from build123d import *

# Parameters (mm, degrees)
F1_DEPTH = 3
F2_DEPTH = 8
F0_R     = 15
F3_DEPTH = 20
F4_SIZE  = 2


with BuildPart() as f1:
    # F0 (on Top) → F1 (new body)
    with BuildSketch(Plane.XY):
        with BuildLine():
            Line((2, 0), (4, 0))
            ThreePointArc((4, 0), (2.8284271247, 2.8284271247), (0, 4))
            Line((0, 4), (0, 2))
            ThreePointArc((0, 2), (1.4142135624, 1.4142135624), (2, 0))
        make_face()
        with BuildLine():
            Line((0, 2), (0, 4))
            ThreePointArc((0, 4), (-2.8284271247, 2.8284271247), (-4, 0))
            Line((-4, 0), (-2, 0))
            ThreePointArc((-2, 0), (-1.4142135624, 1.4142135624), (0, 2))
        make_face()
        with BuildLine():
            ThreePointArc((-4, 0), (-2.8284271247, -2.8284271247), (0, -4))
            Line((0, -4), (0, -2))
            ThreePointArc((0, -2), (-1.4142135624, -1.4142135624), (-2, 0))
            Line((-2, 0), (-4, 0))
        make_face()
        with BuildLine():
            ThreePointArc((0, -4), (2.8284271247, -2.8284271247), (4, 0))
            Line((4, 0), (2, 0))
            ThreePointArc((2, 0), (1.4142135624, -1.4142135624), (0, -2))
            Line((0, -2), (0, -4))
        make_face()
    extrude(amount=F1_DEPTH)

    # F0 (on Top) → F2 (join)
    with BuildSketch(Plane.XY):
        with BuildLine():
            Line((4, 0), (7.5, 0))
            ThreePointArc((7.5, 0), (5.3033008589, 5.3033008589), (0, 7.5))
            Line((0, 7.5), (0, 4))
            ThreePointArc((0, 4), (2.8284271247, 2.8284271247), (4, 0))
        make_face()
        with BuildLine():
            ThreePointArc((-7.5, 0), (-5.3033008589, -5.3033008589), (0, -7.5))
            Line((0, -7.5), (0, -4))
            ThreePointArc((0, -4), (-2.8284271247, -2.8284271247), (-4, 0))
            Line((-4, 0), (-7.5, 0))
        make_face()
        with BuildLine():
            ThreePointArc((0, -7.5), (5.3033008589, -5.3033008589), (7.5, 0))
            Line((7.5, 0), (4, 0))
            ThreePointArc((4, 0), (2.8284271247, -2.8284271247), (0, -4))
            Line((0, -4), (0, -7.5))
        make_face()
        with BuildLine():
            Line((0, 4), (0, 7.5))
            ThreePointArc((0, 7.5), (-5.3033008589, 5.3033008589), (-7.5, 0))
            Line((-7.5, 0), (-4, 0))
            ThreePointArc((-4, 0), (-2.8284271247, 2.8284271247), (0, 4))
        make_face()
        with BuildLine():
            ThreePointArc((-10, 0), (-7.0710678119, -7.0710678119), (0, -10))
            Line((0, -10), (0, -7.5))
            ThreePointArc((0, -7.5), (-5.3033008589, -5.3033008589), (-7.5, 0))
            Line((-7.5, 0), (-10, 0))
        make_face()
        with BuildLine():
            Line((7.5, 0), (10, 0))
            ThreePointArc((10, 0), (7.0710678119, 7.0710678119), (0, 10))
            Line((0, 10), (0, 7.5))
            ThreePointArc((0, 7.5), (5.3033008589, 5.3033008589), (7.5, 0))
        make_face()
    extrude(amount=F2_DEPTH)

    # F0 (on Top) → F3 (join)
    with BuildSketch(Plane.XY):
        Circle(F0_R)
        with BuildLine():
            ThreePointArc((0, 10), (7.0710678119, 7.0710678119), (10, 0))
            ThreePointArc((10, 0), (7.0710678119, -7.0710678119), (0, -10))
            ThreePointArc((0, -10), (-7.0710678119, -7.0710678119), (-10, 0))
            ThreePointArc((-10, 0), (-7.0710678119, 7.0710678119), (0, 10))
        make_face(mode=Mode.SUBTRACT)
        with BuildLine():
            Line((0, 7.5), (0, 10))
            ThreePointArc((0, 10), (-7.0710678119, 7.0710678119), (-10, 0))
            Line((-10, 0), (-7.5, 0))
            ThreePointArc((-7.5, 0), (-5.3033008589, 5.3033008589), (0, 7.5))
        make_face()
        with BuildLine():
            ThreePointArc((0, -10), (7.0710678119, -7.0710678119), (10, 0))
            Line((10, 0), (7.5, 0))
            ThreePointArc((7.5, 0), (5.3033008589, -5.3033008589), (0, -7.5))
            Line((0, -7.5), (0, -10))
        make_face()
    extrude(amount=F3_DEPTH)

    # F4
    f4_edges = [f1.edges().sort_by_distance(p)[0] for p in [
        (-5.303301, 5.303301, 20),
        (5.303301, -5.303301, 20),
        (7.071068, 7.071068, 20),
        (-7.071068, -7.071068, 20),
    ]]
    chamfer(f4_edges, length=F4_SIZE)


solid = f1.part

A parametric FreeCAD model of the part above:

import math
import FreeCAD as App
import Part
import Sketcher


def edges_at(feature, points):
    """Names of the edges that pass closest to the given points."""
    edges = feature.Shape.Edges
    near = lambda p: min(range(len(edges)), key=lambda i: edges[i].distToShape(Part.Vertex(*p))[0])
    return sorted({f"Edge{near(p) + 1}" for p in points})

doc = App.newDocument("Part")
body = doc.addObject("PartDesign::Body", "Body")

# Sketch on XY plane
sketch1 = body.newObject("Sketcher::SketchObject", "Sketch")
sketch1.AttachmentSupport = (doc.getObject("XY_Plane"), [""])
sketch1.MapMode = "FlatFace"
sketch1.addGeometry(Part.ArcOfCircle(Part.Circle(App.Vector(0, 0, 0), App.Vector(0, 0, 1), 4), math.radians(0), math.radians(90)), False)
sketch1.addGeometry(Part.ArcOfCircle(Part.Circle(App.Vector(0, 0, 0), App.Vector(0, 0, 1), 4), math.radians(90), math.radians(180)), False)
sketch1.addGeometry(Part.ArcOfCircle(Part.Circle(App.Vector(0, 0, 0), App.Vector(0, 0, 1), 4), math.radians(180), math.radians(270)), False)
sketch1.addGeometry(Part.ArcOfCircle(Part.Circle(App.Vector(0, 0, 0), App.Vector(0, 0, 1), 4), math.radians(-90), math.radians(0)), False)
sketch1.addGeometry(Part.ArcOfCircle(Part.Circle(App.Vector(0, 0, 0), App.Vector(0, 0, 1), 2), math.radians(180), math.radians(270)), False)
sketch1.addGeometry(Part.ArcOfCircle(Part.Circle(App.Vector(0, 0, 0), App.Vector(0, 0, 1), 2), math.radians(90), math.radians(180)), False)
sketch1.addGeometry(Part.ArcOfCircle(Part.Circle(App.Vector(0, 0, 0), App.Vector(0, 0, 1), 2), math.radians(0), math.radians(90)), False)
sketch1.addGeometry(Part.ArcOfCircle(Part.Circle(App.Vector(0, 0, 0), App.Vector(0, 0, 1), 2), math.radians(-90), math.radians(0)), False)
sketch1.addConstraint(Sketcher.Constraint("Tangent", 0, 2, 1, 1))
sketch1.addConstraint(Sketcher.Constraint("Tangent", 1, 2, 2, 1))
sketch1.addConstraint(Sketcher.Constraint("Tangent", 2, 2, 3, 1))
sketch1.addConstraint(Sketcher.Constraint("Tangent", 3, 2, 0, 1))
sketch1.addConstraint(Sketcher.Constraint("Tangent", 4, 1, 5, 2))
sketch1.addConstraint(Sketcher.Constraint("Tangent", 5, 1, 6, 2))
sketch1.addConstraint(Sketcher.Constraint("Tangent", 6, 1, 7, 2))
sketch1.addConstraint(Sketcher.Constraint("Tangent", 7, 1, 4, 2))
sketch1.addConstraint(Sketcher.Constraint("Coincident", 0, 3, -1, 1))
sketch1.addConstraint(Sketcher.Constraint("Coincident", 4, 3, -1, 1))
sketch1.addConstraint(Sketcher.Constraint("Equal", 0, 1))
sketch1.addConstraint(Sketcher.Constraint("Equal", 4, 5))
sketch1.addConstraint(Sketcher.Constraint("PointOnObject", 0, 2, -2))
sketch1.addConstraint(Sketcher.Constraint("PointOnObject", 1, 2, -1))
sketch1.addConstraint(Sketcher.Constraint("PointOnObject", 2, 2, -2))
sketch1.addConstraint(Sketcher.Constraint("PointOnObject", 3, 2, -1))
sketch1.addConstraint(Sketcher.Constraint("PointOnObject", 4, 1, -1))
sketch1.addConstraint(Sketcher.Constraint("PointOnObject", 5, 1, -2))
sketch1.addConstraint(Sketcher.Constraint("PointOnObject", 6, 1, -1))
sketch1.addConstraint(Sketcher.Constraint("PointOnObject", 7, 1, -2))
sketch1.addConstraint(Sketcher.Constraint("Radius", 0, 4.0))
sketch1.addConstraint(Sketcher.Constraint("Radius", 4, 2.0))
pad1 = body.newObject("PartDesign::Pad", "Pad")
pad1.Profile = sketch1
pad1.Length = 3

# Sketch on XY plane
sketch2 = body.newObject("Sketcher::SketchObject", "Sketch001")
sketch2.AttachmentSupport = (doc.getObject("XY_Plane"), [""])
sketch2.MapMode = "FlatFace"
sketch2.addGeometry(Part.LineSegment(App.Vector(-7.5, 0, 0), App.Vector(-10, 0, 0)), False)
sketch2.addGeometry(Part.ArcOfCircle(Part.Circle(App.Vector(0, 0, 0), App.Vector(0, 0, 1), 10), math.radians(180), math.radians(270)), False)
sketch2.addGeometry(Part.LineSegment(App.Vector(0, -10, 0), App.Vector(0, -7.5, 0)), False)
sketch2.addGeometry(Part.ArcOfCircle(Part.Circle(App.Vector(0, 0, 0), App.Vector(0, 0, 1), 7.5), math.radians(-90), math.radians(0)), False)
sketch2.addGeometry(Part.LineSegment(App.Vector(7.5, 0, 0), App.Vector(10, 0, 0)), False)
sketch2.addGeometry(Part.ArcOfCircle(Part.Circle(App.Vector(0, 0, 0), App.Vector(0, 0, 1), 10), math.radians(0), math.radians(90)), False)
sketch2.addGeometry(Part.LineSegment(App.Vector(0, 10, 0), App.Vector(0, 7.5, 0)), False)
sketch2.addGeometry(Part.ArcOfCircle(Part.Circle(App.Vector(0, 0, 0), App.Vector(0, 0, 1), 7.5), math.radians(90), math.radians(180)), False)
sketch2.addGeometry(Part.ArcOfCircle(Part.Circle(App.Vector(0, 0, 0), App.Vector(0, 0, 1), 4), math.radians(0), math.radians(90)), False)
sketch2.addGeometry(Part.ArcOfCircle(Part.Circle(App.Vector(0, 0, 0), App.Vector(0, 0, 1), 4), math.radians(-90), math.radians(0)), False)
sketch2.addGeometry(Part.ArcOfCircle(Part.Circle(App.Vector(0, 0, 0), App.Vector(0, 0, 1), 4), math.radians(180), math.radians(270)), False)
sketch2.addGeometry(Part.ArcOfCircle(Part.Circle(App.Vector(0, 0, 0), App.Vector(0, 0, 1), 4), math.radians(90), math.radians(180)), False)
sketch2.addConstraint(Sketcher.Constraint("Coincident", 0, 2, 1, 1))
sketch2.addConstraint(Sketcher.Constraint("Coincident", 1, 2, 2, 1))
sketch2.addConstraint(Sketcher.Constraint("Coincident", 2, 2, 3, 1))
sketch2.addConstraint(Sketcher.Constraint("Coincident", 3, 2, 4, 1))
sketch2.addConstraint(Sketcher.Constraint("Coincident", 4, 2, 5, 1))
sketch2.addConstraint(Sketcher.Constraint("Coincident", 5, 2, 6, 1))
sketch2.addConstraint(Sketcher.Constraint("Coincident", 6, 2, 7, 1))
sketch2.addConstraint(Sketcher.Constraint("Coincident", 7, 2, 0, 1))
sketch2.addConstraint(Sketcher.Constraint("Tangent", 8, 1, 9, 2))
sketch2.addConstraint(Sketcher.Constraint("Tangent", 9, 1, 10, 2))
sketch2.addConstraint(Sketcher.Constraint("Tangent", 10, 1, 11, 2))
sketch2.addConstraint(Sketcher.Constraint("Tangent", 11, 1, 8, 2))
sketch2.addConstraint(Sketcher.Constraint("Horizontal", 0))
sketch2.addConstraint(Sketcher.Constraint("Vertical", 2))
sketch2.addConstraint(Sketcher.Constraint("Horizontal", 4))
sketch2.addConstraint(Sketcher.Constraint("Vertical", 6))
sketch2.addConstraint(Sketcher.Constraint("Coincident", 1, 3, -1, 1))
sketch2.addConstraint(Sketcher.Constraint("Coincident", 3, 3, -1, 1))
sketch2.addConstraint(Sketcher.Constraint("Coincident", 5, 3, -1, 1))
sketch2.addConstraint(Sketcher.Constraint("Coincident", 7, 3, -1, 1))
sketch2.addConstraint(Sketcher.Constraint("Coincident", 8, 3, -1, 1))
sketch2.addConstraint(Sketcher.Constraint("Equal", 1, 5))
sketch2.addConstraint(Sketcher.Constraint("Equal", 3, 7))
sketch2.addConstraint(Sketcher.Constraint("Equal", 8, 9))
sketch2.addConstraint(Sketcher.Constraint("PointOnObject", 0, 2, -1))
sketch2.addConstraint(Sketcher.Constraint("PointOnObject", 1, 2, -2))
sketch2.addConstraint(Sketcher.Constraint("PointOnObject", 3, 2, -1))
sketch2.addConstraint(Sketcher.Constraint("PointOnObject", 5, 2, -2))
sketch2.addConstraint(Sketcher.Constraint("PointOnObject", 8, 1, -1))
sketch2.addConstraint(Sketcher.Constraint("PointOnObject", 9, 1, -2))
sketch2.addConstraint(Sketcher.Constraint("PointOnObject", 10, 1, -1))
sketch2.addConstraint(Sketcher.Constraint("PointOnObject", 11, 1, -2))
sketch2.addConstraint(Sketcher.Constraint("Radius", 1, 10.0))
sketch2.addConstraint(Sketcher.Constraint("Radius", 8, 4.0))
sketch2.addConstraint(Sketcher.Constraint("Radius", 3, 7.5))
pad2 = body.newObject("PartDesign::Pad", "Pad001")
pad2.Profile = sketch2
pad2.Length = 8

# Sketch on XY plane
sketch3 = body.newObject("Sketcher::SketchObject", "Sketch002")
sketch3.AttachmentSupport = (doc.getObject("XY_Plane"), [""])
sketch3.MapMode = "FlatFace"
sketch3.addGeometry(Part.Circle(App.Vector(0, 0, 0), App.Vector(0, 0, 1), 15), False)
sketch3.addGeometry(Part.ArcOfCircle(Part.Circle(App.Vector(0, 0, 0), App.Vector(0, 0, 1), 10), math.radians(180), math.radians(270)), False)
sketch3.addGeometry(Part.LineSegment(App.Vector(-10, 0, 0), App.Vector(-7.5, 0, 0)), False)
sketch3.addGeometry(Part.ArcOfCircle(Part.Circle(App.Vector(0, 0, 0), App.Vector(0, 0, 1), 7.5), math.radians(90), math.radians(180)), False)
sketch3.addGeometry(Part.LineSegment(App.Vector(0, 7.5, 0), App.Vector(0, 10, 0)), False)
sketch3.addGeometry(Part.ArcOfCircle(Part.Circle(App.Vector(0, 0, 0), App.Vector(0, 0, 1), 10), math.radians(0), math.radians(90)), False)
sketch3.addGeometry(Part.LineSegment(App.Vector(10, 0, 0), App.Vector(7.5, 0, 0)), False)
sketch3.addGeometry(Part.ArcOfCircle(Part.Circle(App.Vector(0, 0, 0), App.Vector(0, 0, 1), 7.5), math.radians(-90), math.radians(0)), False)
sketch3.addGeometry(Part.LineSegment(App.Vector(0, -7.5, 0), App.Vector(0, -10, 0)), False)
sketch3.addConstraint(Sketcher.Constraint("Coincident", 1, 1, 2, 1))
sketch3.addConstraint(Sketcher.Constraint("Coincident", 2, 2, 3, 2))
sketch3.addConstraint(Sketcher.Constraint("Coincident", 3, 1, 4, 1))
sketch3.addConstraint(Sketcher.Constraint("Coincident", 4, 2, 5, 2))
sketch3.addConstraint(Sketcher.Constraint("Coincident", 5, 1, 6, 1))
sketch3.addConstraint(Sketcher.Constraint("Coincident", 6, 2, 7, 2))
sketch3.addConstraint(Sketcher.Constraint("Coincident", 7, 1, 8, 1))
sketch3.addConstraint(Sketcher.Constraint("Coincident", 8, 2, 1, 2))
sketch3.addConstraint(Sketcher.Constraint("Horizontal", 2))
sketch3.addConstraint(Sketcher.Constraint("Vertical", 4))
sketch3.addConstraint(Sketcher.Constraint("Horizontal", 6))
sketch3.addConstraint(Sketcher.Constraint("Vertical", 8))
sketch3.addConstraint(Sketcher.Constraint("Coincident", 0, 3, -1, 1))
sketch3.addConstraint(Sketcher.Constraint("Coincident", 1, 3, -1, 1))
sketch3.addConstraint(Sketcher.Constraint("Coincident", 3, 3, -1, 1))
sketch3.addConstraint(Sketcher.Constraint("Coincident", 5, 3, -1, 1))
sketch3.addConstraint(Sketcher.Constraint("Coincident", 7, 3, -1, 1))
sketch3.addConstraint(Sketcher.Constraint("Equal", 1, 5))
sketch3.addConstraint(Sketcher.Constraint("Equal", 3, 7))
sketch3.addConstraint(Sketcher.Constraint("PointOnObject", 1, 1, -1))
sketch3.addConstraint(Sketcher.Constraint("PointOnObject", 3, 1, -2))
sketch3.addConstraint(Sketcher.Constraint("PointOnObject", 5, 1, -1))
sketch3.addConstraint(Sketcher.Constraint("PointOnObject", 7, 1, -2))
sketch3.addConstraint(Sketcher.Constraint("Diameter", 0, 30.0))
sketch3.addConstraint(Sketcher.Constraint("Radius", 1, 10.0))
sketch3.addConstraint(Sketcher.Constraint("Radius", 3, 7.5))
pad3 = body.newObject("PartDesign::Pad", "Pad002")
pad3.Profile = sketch3
pad3.Length = 20
doc.recompute()

chamfer = body.newObject("PartDesign::Chamfer", "Chamfer")
chamfer.Base = (pad3, edges_at(pad3, [
    (-5.303, 5.303, 20),
    (5.303, -5.303, 20),
    (7.071, 7.071, 20),
    (-7.071, -7.071, 20),
]))
chamfer.Size = 2

doc.recompute()
